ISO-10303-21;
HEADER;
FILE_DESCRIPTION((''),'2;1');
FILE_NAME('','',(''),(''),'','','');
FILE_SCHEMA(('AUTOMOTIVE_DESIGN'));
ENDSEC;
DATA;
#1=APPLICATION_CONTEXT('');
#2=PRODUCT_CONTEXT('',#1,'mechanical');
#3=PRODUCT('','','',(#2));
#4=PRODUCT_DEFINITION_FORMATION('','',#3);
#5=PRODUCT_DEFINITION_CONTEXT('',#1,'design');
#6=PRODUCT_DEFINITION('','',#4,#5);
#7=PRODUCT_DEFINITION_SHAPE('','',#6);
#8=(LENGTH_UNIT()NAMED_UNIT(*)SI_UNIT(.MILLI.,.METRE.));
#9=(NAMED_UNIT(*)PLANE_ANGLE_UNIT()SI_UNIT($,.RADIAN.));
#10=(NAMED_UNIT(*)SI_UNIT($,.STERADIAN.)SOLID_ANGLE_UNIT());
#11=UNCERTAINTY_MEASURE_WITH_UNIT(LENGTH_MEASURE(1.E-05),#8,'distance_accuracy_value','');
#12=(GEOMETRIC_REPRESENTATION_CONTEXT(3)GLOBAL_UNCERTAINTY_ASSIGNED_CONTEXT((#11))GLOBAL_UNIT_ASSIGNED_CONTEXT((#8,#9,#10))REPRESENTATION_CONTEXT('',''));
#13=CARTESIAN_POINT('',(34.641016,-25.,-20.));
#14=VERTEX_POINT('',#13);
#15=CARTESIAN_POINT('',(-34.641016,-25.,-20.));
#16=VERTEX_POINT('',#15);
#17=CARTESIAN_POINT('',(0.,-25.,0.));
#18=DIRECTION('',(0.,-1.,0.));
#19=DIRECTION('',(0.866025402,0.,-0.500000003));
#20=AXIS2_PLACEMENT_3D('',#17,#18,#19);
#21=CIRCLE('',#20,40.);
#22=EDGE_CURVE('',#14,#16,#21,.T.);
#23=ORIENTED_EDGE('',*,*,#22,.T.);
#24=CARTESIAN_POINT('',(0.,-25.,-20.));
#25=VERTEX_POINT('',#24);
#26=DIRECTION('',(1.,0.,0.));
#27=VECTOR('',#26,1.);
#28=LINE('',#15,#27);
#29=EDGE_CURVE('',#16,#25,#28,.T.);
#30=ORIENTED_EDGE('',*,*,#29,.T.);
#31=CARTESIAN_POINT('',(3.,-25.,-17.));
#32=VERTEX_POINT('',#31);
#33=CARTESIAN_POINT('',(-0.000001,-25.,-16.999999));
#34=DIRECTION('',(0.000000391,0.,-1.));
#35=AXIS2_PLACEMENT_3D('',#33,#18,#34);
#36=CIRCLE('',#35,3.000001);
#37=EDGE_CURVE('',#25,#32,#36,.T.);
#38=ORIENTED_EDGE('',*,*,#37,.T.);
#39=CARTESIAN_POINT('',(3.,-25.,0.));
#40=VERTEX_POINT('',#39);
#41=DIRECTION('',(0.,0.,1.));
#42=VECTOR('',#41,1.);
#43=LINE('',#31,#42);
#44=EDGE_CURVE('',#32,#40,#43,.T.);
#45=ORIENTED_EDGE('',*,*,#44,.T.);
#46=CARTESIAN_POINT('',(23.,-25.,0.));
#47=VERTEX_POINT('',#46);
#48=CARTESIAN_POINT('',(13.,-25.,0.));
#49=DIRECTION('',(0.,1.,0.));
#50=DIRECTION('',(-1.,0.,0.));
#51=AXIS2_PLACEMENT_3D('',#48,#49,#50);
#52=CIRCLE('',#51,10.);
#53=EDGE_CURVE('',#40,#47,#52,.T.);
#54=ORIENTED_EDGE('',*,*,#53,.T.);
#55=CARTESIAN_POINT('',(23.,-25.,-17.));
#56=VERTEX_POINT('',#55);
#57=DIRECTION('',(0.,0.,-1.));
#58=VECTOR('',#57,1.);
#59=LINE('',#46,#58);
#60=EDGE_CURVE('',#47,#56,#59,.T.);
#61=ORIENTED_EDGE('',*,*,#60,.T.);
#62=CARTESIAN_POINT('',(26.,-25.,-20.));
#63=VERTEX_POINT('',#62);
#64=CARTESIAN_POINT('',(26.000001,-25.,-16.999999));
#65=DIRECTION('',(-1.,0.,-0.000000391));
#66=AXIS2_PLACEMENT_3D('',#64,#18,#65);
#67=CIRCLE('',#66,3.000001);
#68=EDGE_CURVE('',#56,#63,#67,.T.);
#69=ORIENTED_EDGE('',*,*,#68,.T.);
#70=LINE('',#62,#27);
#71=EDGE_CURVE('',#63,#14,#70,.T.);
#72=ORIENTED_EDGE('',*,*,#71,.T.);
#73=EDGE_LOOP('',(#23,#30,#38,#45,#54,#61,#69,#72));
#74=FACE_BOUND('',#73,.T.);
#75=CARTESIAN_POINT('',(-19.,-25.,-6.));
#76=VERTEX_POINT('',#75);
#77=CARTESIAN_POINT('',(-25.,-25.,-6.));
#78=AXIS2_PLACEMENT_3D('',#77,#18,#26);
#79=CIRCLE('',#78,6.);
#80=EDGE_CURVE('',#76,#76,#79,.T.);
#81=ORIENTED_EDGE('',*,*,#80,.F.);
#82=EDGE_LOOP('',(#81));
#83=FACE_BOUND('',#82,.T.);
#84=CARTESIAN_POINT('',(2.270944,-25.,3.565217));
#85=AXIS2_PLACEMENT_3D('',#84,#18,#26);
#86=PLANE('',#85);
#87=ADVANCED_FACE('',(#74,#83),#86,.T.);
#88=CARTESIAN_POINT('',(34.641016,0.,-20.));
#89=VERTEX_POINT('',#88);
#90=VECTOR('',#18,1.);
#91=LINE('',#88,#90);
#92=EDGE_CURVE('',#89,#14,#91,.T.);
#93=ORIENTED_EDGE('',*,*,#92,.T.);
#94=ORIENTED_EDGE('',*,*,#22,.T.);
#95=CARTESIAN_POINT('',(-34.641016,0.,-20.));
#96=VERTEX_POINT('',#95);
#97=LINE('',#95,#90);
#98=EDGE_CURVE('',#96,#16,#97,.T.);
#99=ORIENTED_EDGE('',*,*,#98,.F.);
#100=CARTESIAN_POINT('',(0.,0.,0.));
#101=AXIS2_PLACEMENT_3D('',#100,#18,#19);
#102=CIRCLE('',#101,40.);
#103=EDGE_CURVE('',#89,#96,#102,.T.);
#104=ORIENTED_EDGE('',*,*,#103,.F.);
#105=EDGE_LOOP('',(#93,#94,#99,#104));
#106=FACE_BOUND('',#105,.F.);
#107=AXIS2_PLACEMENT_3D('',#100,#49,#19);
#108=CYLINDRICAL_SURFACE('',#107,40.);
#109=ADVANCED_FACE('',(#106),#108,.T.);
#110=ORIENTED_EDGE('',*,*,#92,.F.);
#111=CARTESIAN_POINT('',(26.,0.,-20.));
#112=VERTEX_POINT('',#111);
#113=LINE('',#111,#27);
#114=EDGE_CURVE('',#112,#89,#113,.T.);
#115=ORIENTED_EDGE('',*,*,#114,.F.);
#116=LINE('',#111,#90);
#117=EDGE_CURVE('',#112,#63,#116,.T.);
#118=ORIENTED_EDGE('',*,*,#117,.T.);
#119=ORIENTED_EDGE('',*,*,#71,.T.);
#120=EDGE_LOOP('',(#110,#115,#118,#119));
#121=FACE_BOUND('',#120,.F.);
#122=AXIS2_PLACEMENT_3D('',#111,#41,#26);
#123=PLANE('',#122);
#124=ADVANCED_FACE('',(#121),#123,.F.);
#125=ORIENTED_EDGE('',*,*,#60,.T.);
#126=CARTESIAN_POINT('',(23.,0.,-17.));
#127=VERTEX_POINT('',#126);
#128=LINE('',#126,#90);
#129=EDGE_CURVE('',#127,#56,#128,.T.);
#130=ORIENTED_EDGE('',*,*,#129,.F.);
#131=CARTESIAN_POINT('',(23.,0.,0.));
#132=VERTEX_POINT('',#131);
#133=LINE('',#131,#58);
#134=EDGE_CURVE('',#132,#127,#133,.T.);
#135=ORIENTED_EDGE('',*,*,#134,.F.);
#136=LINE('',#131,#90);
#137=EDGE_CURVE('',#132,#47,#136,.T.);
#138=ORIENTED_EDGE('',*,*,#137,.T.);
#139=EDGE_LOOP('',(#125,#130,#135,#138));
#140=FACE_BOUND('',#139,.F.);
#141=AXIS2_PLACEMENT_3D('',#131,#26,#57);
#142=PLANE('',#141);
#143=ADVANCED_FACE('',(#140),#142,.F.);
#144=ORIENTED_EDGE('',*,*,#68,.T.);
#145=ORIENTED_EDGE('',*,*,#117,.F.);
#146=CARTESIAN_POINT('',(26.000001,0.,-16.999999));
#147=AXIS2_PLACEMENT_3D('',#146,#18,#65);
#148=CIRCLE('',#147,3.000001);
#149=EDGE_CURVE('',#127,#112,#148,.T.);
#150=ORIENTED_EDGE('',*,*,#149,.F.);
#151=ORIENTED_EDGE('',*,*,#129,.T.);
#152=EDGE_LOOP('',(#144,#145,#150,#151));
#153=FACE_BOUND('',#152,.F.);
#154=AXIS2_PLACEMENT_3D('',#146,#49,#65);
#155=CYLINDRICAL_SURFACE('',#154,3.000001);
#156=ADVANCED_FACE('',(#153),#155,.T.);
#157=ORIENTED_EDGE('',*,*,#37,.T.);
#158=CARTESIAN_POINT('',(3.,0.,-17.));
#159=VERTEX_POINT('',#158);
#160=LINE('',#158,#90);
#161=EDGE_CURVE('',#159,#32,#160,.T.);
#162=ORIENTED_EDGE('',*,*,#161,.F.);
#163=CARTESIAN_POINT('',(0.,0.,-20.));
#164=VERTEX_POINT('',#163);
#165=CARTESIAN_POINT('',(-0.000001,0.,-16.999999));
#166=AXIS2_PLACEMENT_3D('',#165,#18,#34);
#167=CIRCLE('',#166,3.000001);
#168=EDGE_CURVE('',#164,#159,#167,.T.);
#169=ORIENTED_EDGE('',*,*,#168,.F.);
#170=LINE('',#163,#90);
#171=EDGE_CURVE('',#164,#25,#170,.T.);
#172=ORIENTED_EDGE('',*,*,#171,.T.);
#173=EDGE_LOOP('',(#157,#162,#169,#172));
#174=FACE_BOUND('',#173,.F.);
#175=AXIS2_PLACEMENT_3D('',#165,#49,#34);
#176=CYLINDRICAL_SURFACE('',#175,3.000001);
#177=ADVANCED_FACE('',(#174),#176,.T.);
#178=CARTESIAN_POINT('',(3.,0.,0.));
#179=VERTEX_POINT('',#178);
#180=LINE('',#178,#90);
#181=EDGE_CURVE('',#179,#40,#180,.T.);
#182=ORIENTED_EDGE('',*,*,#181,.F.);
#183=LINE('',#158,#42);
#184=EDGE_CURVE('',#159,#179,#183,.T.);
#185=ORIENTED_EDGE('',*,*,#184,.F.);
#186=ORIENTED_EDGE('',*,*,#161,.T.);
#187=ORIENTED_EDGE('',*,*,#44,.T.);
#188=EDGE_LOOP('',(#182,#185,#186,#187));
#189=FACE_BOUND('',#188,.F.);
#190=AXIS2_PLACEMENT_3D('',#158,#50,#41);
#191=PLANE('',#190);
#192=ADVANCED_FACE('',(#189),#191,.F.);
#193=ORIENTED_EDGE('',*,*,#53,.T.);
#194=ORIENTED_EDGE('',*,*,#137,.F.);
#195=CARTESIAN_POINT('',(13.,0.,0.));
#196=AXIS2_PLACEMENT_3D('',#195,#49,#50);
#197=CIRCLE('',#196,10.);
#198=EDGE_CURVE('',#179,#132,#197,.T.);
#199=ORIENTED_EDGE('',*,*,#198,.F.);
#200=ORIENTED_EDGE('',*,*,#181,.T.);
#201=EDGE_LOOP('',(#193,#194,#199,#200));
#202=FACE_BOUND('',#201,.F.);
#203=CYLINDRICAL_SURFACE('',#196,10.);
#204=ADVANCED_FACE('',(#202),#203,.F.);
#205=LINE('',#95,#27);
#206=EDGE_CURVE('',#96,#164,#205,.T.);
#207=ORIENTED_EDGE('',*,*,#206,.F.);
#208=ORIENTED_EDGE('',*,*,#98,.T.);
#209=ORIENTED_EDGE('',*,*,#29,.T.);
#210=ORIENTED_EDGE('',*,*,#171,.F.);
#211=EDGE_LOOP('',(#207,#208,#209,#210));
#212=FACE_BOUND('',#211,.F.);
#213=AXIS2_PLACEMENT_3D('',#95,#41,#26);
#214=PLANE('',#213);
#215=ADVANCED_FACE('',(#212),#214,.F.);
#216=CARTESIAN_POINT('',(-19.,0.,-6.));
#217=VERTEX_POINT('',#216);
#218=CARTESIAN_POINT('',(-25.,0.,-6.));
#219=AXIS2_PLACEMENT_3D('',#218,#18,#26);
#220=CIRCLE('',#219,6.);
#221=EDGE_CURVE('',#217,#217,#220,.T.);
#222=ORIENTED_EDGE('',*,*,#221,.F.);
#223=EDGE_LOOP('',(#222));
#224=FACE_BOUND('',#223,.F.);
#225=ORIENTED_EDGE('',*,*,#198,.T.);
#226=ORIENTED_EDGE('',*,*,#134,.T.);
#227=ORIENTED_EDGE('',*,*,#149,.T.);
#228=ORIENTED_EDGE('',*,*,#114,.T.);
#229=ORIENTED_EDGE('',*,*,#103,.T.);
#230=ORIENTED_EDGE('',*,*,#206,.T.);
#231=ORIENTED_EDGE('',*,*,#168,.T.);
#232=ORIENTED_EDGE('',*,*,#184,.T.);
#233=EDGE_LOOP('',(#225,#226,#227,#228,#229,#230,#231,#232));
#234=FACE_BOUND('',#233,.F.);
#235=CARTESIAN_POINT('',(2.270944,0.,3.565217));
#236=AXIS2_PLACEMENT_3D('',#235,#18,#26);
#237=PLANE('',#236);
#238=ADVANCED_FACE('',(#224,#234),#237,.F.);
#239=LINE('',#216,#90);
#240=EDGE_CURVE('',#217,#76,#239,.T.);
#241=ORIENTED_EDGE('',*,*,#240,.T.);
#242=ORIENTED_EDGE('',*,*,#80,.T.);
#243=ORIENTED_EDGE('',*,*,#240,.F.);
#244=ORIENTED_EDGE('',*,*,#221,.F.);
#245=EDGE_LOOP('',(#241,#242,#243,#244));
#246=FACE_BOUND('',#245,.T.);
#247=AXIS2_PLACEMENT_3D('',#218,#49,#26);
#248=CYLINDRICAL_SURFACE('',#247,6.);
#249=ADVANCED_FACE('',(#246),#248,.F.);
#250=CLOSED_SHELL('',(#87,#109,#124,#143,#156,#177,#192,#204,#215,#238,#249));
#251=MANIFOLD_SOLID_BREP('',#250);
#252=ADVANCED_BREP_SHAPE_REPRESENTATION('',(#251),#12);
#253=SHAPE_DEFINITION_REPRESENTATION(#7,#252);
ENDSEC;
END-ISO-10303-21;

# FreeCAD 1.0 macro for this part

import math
import FreeCAD as App
import Part
import Sketcher
from FreeCAD import Vector
Q = App.Units.Quantity

doc = App.newDocument("Part")
body = doc.addObject("PartDesign::Body", "Body")

# Sketch on XZ plane
sketch1 = body.newObject("Sketcher::SketchObject", "Sketch")
sketch1.AttachmentSupport = (doc.getObject("XZ_Plane"), [""])
sketch1.MapMode = "FlatFace"
sketch1.addGeometry(Part.LineSegment(Vector(26, -20, 0), Vector(34.6, -20, 0)), False)
sketch1.addGeometry(Part.ArcOfCircle(Part.Circle(Vector(0, 0, 0), Vector(0, 0, 1), 40), math.radians(-30), math.radians(210)), False)
sketch1.addGeometry(Part.LineSegment(Vector(-34.6, -20, 0), Vector(0, -20, 0)), False)
sketch1.addGeometry(Part.ArcOfCircle(Part.Circle(Vector(0, -17, 0), Vector(0, 0, 1), 3), math.radians(-90), math.radians(0)), False)
sketch1.addGeometry(Part.LineSegment(Vector(3, -17, 0), Vector(3, 0, 0)), False)
sketch1.addGeometry(Part.ArcOfCircle(Part.Circle(Vector(13, 0, 0), Vector(0, 0, 1), 10), math.radians(0), math.radians(180)), False)
sketch1.addGeometry(Part.LineSegment(Vector(23, 0, 0), Vector(23, -17, 0)), False)
sketch1.addGeometry(Part.ArcOfCircle(Part.Circle(Vector(26, -17, 0), Vector(0, 0, 1), 3), math.radians(-180), math.radians(-90)), False)
sketch1.addGeometry(Part.Circle(Vector(-25, -6, 0), Vector(0, 0, 1), 6), False)
sketch1.addConstraint(Sketcher.Constraint("Coincident", 0, 2, 1, 1))
sketch1.addConstraint(Sketcher.Constraint("Coincident", 1, 2, 2, 1))
sketch1.addConstraint(Sketcher.Constraint("Tangent", 2, 2, 3, 1))
sketch1.addConstraint(Sketcher.Constraint("Tangent", 3, 2, 4, 1))
sketch1.addConstraint(Sketcher.Constraint("Tangent", 4, 2, 5, 2))
sketch1.addConstraint(Sketcher.Constraint("Tangent", 5, 1, 6, 1))
sketch1.addConstraint(Sketcher.Constraint("Tangent", 6, 2, 7, 1))
sketch1.addConstraint(Sketcher.Constraint("Tangent", 7, 2, 0, 1))
sketch1.addConstraint(Sketcher.Constraint("Horizontal", 0))
sketch1.addConstraint(Sketcher.Constraint("Horizontal", 2))
sketch1.addConstraint(Sketcher.Constraint("Vertical", 4))
sketch1.addConstraint(Sketcher.Constraint("Vertical", 6))
sketch1.addConstraint(Sketcher.Constraint("Coincident", 1, 3, -1, 1))
sketch1.addConstraint(Sketcher.Constraint("Equal", 3, 7))
sketch1.addConstraint(Sketcher.Constraint("PointOnObject", 3, 3, -2))
sketch1.addConstraint(Sketcher.Constraint("PointOnObject", 5, 3, -1))
sketch1.addConstraint(Sketcher.Constraint("Horizontal", 3, 3, 7, 3))
sketch1.addConstraint(Sketcher.Constraint("Diameter", 8, Q("12 mm")))
sketch1.addConstraint(Sketcher.Constraint("Radius", 1, Q("40 mm")))
sketch1.addConstraint(Sketcher.Constraint("Radius", 3, Q("3.000001 mm")))
sketch1.addConstraint(Sketcher.Constraint("Radius", 5, Q("10 mm")))
sketch1.addConstraint(Sketcher.Constraint("DistanceY", 4, 1, 4, 2, Q("17 mm")))
sketch1.addConstraint(Sketcher.Constraint("DistanceX", 8, 3, -1, 1, Q("25 mm")))
sketch1.addConstraint(Sketcher.Constraint("DistanceY", 8, 3, -1, 1, Q("6 mm")))
pad1 = body.newObject("PartDesign::Pad", "Pad")
pad1.Profile = sketch1
pad1.Length = 25

doc.recompute()
